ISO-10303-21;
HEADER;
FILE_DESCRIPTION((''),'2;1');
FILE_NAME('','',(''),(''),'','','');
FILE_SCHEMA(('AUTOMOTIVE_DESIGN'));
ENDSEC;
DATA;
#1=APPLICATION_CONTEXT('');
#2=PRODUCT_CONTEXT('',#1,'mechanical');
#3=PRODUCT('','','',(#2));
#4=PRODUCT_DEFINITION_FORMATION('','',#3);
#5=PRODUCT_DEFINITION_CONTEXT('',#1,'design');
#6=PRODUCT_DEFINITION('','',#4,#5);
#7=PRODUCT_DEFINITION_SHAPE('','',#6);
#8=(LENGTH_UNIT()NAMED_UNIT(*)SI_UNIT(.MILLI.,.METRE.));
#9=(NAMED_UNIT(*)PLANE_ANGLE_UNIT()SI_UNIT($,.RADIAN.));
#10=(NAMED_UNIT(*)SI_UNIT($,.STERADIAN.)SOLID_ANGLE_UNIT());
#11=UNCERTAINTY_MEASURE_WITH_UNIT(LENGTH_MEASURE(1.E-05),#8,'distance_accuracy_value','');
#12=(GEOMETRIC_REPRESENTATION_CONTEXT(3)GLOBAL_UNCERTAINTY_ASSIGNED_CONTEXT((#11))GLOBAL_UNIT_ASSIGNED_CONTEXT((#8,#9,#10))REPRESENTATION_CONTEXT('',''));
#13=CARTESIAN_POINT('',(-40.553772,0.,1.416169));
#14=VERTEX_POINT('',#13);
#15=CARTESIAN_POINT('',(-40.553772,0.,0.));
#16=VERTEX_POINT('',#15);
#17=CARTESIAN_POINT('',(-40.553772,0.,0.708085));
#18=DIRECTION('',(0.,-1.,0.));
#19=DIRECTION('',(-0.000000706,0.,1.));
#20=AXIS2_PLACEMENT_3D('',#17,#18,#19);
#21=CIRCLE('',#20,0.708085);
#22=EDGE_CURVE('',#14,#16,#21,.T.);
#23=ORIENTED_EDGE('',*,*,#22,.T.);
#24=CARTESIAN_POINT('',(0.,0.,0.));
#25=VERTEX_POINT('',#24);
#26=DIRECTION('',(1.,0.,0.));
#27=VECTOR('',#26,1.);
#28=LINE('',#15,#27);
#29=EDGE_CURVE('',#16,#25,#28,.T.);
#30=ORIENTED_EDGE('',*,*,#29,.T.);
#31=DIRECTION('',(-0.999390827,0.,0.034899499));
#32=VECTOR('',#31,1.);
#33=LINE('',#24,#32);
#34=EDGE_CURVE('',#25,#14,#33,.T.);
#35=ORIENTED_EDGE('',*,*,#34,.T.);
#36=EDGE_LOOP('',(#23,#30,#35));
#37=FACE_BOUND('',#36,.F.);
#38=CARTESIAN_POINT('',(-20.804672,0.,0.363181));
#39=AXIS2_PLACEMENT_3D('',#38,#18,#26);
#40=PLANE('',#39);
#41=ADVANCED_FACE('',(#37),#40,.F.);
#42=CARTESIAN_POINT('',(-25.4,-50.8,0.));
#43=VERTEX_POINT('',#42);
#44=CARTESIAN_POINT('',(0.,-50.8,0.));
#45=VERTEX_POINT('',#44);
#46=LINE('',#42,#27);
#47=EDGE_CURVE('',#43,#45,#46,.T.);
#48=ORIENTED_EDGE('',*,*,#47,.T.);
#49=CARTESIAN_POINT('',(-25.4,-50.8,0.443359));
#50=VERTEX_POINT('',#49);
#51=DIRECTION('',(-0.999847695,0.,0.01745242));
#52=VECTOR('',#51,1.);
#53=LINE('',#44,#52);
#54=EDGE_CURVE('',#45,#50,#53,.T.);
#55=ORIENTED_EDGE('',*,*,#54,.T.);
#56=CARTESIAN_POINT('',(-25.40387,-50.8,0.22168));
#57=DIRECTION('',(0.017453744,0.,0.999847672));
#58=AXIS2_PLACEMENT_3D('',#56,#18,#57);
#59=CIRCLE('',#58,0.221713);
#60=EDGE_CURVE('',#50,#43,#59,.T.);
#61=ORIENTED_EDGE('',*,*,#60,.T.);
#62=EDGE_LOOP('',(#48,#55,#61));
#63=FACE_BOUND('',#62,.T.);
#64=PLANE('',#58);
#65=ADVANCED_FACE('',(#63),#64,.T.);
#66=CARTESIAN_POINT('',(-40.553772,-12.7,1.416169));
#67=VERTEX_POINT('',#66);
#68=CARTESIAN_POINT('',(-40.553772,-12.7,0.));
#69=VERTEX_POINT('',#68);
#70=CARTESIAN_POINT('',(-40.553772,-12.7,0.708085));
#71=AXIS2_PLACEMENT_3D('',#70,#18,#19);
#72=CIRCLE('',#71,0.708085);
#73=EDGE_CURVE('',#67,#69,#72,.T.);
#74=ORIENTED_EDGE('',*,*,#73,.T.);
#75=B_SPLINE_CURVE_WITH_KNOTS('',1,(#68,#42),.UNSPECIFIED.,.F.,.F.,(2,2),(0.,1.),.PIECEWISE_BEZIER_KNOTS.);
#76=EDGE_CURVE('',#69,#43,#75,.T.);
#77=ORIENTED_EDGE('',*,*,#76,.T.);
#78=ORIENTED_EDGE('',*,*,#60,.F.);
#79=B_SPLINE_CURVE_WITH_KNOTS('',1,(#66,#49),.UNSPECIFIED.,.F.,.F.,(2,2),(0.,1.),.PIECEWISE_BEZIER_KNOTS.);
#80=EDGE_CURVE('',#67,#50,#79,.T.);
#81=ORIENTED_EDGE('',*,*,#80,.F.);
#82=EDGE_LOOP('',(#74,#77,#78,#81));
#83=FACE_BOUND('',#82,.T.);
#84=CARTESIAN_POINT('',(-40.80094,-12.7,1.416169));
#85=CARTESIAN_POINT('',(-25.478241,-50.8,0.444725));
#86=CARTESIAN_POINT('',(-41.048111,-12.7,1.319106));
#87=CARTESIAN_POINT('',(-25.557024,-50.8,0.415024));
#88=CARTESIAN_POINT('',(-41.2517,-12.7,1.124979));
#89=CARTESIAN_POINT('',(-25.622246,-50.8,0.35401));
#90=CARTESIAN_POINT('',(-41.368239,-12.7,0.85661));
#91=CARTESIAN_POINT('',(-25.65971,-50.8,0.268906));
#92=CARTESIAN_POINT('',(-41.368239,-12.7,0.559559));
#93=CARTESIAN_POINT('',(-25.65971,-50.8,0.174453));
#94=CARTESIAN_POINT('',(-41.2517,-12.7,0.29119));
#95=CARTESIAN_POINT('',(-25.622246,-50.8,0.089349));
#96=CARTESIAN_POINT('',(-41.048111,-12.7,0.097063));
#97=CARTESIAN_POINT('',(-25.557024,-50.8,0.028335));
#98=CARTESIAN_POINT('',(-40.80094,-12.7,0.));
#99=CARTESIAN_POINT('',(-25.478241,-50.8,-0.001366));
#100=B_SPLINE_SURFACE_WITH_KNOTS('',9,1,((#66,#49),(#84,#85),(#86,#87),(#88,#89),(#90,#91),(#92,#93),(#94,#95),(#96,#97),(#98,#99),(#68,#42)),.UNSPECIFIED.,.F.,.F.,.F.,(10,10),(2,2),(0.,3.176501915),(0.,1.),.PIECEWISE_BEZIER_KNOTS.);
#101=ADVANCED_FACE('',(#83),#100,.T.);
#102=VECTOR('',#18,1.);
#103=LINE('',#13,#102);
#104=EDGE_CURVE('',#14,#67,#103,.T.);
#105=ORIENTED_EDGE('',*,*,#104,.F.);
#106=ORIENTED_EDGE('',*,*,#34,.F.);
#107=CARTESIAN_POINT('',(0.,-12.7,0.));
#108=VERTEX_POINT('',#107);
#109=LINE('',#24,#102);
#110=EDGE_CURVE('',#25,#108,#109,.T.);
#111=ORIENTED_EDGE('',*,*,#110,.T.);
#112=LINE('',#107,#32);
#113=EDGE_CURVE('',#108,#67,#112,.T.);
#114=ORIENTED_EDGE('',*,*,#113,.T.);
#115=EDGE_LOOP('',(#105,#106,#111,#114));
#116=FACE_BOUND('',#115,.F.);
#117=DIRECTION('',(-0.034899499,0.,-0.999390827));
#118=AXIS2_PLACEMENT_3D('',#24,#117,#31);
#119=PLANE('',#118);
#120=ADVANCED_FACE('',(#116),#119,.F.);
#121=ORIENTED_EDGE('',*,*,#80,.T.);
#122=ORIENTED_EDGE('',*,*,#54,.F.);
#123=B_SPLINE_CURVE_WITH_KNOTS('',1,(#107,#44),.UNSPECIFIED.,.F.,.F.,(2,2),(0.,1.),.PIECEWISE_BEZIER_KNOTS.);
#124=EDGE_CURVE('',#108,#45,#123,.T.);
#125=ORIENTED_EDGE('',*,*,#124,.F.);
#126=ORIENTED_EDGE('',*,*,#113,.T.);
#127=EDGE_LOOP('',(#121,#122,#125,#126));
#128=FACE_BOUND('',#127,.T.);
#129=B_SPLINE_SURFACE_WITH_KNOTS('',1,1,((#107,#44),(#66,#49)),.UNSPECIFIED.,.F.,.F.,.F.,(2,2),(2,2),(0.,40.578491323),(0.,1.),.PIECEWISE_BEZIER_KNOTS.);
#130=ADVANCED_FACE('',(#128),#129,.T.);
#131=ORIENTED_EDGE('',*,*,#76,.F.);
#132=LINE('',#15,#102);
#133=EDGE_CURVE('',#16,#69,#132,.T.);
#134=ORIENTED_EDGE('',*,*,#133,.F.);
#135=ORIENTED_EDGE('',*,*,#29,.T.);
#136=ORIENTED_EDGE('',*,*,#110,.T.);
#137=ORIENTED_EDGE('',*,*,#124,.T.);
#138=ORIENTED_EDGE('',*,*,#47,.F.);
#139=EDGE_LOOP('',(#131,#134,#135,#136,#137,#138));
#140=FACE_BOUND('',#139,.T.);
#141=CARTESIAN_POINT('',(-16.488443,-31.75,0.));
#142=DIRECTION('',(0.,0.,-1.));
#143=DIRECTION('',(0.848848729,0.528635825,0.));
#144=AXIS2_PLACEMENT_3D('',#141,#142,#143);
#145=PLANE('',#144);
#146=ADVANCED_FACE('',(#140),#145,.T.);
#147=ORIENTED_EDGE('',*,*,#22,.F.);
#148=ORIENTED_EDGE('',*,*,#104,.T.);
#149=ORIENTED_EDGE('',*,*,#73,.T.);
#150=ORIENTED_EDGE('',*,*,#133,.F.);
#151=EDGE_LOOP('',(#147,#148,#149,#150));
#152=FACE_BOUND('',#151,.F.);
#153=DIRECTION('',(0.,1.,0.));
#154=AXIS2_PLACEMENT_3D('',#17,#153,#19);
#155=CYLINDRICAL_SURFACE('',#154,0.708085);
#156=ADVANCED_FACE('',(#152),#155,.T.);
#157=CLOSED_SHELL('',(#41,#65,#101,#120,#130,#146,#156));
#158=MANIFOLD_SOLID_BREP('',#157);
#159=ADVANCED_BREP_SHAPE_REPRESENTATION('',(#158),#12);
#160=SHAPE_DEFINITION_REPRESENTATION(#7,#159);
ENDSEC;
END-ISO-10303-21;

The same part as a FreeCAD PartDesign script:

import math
import FreeCAD as App
import Part
import Sketcher
from FreeCAD import Vector
Q = App.Units.Quantity

doc = App.newDocument("Part")
body = doc.addObject("PartDesign::Body", "Body")

sketch1 = body.newObject("Sketcher::SketchObject", "Sketch")
sketch1.AttachmentSupport = (doc.getObject("XZ_Plane"), [""])
sketch1.MapMode = "FlatFace"
sketch1.addGeometry(Part.LineSegment(Vector(-40.553772, 0, 0), Vector(0, 0, 0)), False)
sketch1.addGeometry(Part.LineSegment(Vector(0, 0, 0), Vector(-40.553772, 1.416169, 0)), False)
sketch1.addGeometry(Part.ArcOfCircle(Part.Circle(Vector(-40.553772, 0.708085, 0), Vector(0, 0, 1), 0.708085), math.radians(90.00004), math.radians(269.99996)), False)
sketch1.addConstraint(Sketcher.Constraint("Coincident", 0, 2, 1, 1))
sketch1.addConstraint(Sketcher.Constraint("Coincident", 1, 2, 2, 1))
sketch1.addConstraint(Sketcher.Constraint("Coincident", 2, 2, 0, 1))
sketch1.addConstraint(Sketcher.Constraint("Horizontal", 0))
sketch1.addConstraint(Sketcher.Constraint("Coincident", 0, 2, -1, 1))
sketch1.addConstraint(Sketcher.Constraint("Radius", 2, Q("0.708085 mm")))
sketch1.addConstraint(Sketcher.Constraint("Distance", 1, Q("40.578491 mm")))
sketch1.addConstraint(Sketcher.Constraint("DistanceX", 0, 1, 0, 2, Q("40.553772 mm")))
sketch1.addConstraint(Sketcher.Constraint("DistanceX", 2, 3, -1, 1, Q("40.553772 mm")))
pad1 = body.newObject("PartDesign::Pad", "Pad")
pad1.Profile = sketch1
pad1.Length = Q("0.5 in")

sketch2 = body.newObject("Sketcher::SketchObject", "Sketch001")
sketch2.AttachmentSupport = (doc.getObject("XZ_Plane"), [""])
sketch2.MapMode = "FlatFace"
sketch2.AttachmentOffset = App.Placement(Vector(0, 0, 0.5 * 25.4), App.Rotation())
sketch2.addGeometry(Part.LineSegment(Vector(-40.553772, 0, 0), Vector(0, 0, 0)), False)
sketch2.addGeometry(Part.LineSegment(Vector(0, 0, 0), Vector(-40.553772, 1.416169, 0)), False)
sketch2.addGeometry(Part.ArcOfCircle(Part.Circle(Vector(-40.553772, 0.708085, 0), Vector(0, 0, 1), 0.708085), math.radians(90.00004), math.radians(269.99996)), False)
sketch2.addConstraint(Sketcher.Constraint("Coincident", 0, 2, 1, 1))
sketch2.addConstraint(Sketcher.Constraint("Coincident", 1, 2, 2, 1))
sketch2.addConstraint(Sketcher.Constraint("Coincident", 2, 2, 0, 1))
sketch2.addConstraint(Sketcher.Constraint("Horizontal", 0))
sketch2.addConstraint(Sketcher.Constraint("Coincident", 0, 2, -1, 1))
sketch2.addConstraint(Sketcher.Constraint("Radius", 2, Q("0.708085 mm")))
sketch2.addConstraint(Sketcher.Constraint("Distance", 1, Q("40.578491 mm")))
sketch2.addConstraint(Sketcher.Constraint("DistanceX", 0, 1, 0, 2, Q("40.553772 mm")))
sketch2.addConstraint(Sketcher.Constraint("DistanceX", 2, 3, -1, 1, Q("40.553772 mm")))

sketch3 = body.newObject("Sketcher::SketchObject", "Sketch002")
sketch3.AttachmentSupport = (doc.getObject("XZ_Plane"), [""])
sketch3.MapMode = "FlatFace"
sketch3.AttachmentOffset = App.Placement(Vector(0, 0, 2 * 25.4), App.Rotation())
sketch3.addGeometry(Part.LineSegment(Vector(-25.4, 0, 0), Vector(0, 0, 0)), False)
sketch3.addGeometry(Part.LineSegment(Vector(0, 0, 0), Vector(-25.4, 0.443359, 0)), False)
sketch3.addGeometry(Part.ArcOfCircle(Part.Circle(Vector(-25.40387, 0.22168, 0), Vector(0, 0, 1), 0.221713), math.radians(88.999923), math.radians(271.000077)), False)
sketch3.addConstraint(Sketcher.Constraint("Coincident", 0, 2, 1, 1))
sketch3.addConstraint(Sketcher.Constraint("Tangent", 1, 2, 2, 1))
sketch3.addConstraint(Sketcher.Constraint("Coincident", 2, 2, 0, 1))
sketch3.addConstraint(Sketcher.Constraint("Horizontal", 0))
sketch3.addConstraint(Sketcher.Constraint("Coincident", 0, 2, -1, 1))
sketch3.addConstraint(Sketcher.Constraint("Vertical", 1, 2, 2, 2))
sketch3.addConstraint(Sketcher.Constraint("DistanceX", 0, 1, 0, 2, Q("1 in")))
sketch3.addConstraint(Sketcher.Constraint("Angle", 1, Q("178.999999 deg")))

additiveloft = body.newObject("PartDesign::AdditiveLoft", "AdditiveLoft")
additiveloft.Profile = sketch2
additiveloft.Sections = [sketch3]

doc.recompute()
